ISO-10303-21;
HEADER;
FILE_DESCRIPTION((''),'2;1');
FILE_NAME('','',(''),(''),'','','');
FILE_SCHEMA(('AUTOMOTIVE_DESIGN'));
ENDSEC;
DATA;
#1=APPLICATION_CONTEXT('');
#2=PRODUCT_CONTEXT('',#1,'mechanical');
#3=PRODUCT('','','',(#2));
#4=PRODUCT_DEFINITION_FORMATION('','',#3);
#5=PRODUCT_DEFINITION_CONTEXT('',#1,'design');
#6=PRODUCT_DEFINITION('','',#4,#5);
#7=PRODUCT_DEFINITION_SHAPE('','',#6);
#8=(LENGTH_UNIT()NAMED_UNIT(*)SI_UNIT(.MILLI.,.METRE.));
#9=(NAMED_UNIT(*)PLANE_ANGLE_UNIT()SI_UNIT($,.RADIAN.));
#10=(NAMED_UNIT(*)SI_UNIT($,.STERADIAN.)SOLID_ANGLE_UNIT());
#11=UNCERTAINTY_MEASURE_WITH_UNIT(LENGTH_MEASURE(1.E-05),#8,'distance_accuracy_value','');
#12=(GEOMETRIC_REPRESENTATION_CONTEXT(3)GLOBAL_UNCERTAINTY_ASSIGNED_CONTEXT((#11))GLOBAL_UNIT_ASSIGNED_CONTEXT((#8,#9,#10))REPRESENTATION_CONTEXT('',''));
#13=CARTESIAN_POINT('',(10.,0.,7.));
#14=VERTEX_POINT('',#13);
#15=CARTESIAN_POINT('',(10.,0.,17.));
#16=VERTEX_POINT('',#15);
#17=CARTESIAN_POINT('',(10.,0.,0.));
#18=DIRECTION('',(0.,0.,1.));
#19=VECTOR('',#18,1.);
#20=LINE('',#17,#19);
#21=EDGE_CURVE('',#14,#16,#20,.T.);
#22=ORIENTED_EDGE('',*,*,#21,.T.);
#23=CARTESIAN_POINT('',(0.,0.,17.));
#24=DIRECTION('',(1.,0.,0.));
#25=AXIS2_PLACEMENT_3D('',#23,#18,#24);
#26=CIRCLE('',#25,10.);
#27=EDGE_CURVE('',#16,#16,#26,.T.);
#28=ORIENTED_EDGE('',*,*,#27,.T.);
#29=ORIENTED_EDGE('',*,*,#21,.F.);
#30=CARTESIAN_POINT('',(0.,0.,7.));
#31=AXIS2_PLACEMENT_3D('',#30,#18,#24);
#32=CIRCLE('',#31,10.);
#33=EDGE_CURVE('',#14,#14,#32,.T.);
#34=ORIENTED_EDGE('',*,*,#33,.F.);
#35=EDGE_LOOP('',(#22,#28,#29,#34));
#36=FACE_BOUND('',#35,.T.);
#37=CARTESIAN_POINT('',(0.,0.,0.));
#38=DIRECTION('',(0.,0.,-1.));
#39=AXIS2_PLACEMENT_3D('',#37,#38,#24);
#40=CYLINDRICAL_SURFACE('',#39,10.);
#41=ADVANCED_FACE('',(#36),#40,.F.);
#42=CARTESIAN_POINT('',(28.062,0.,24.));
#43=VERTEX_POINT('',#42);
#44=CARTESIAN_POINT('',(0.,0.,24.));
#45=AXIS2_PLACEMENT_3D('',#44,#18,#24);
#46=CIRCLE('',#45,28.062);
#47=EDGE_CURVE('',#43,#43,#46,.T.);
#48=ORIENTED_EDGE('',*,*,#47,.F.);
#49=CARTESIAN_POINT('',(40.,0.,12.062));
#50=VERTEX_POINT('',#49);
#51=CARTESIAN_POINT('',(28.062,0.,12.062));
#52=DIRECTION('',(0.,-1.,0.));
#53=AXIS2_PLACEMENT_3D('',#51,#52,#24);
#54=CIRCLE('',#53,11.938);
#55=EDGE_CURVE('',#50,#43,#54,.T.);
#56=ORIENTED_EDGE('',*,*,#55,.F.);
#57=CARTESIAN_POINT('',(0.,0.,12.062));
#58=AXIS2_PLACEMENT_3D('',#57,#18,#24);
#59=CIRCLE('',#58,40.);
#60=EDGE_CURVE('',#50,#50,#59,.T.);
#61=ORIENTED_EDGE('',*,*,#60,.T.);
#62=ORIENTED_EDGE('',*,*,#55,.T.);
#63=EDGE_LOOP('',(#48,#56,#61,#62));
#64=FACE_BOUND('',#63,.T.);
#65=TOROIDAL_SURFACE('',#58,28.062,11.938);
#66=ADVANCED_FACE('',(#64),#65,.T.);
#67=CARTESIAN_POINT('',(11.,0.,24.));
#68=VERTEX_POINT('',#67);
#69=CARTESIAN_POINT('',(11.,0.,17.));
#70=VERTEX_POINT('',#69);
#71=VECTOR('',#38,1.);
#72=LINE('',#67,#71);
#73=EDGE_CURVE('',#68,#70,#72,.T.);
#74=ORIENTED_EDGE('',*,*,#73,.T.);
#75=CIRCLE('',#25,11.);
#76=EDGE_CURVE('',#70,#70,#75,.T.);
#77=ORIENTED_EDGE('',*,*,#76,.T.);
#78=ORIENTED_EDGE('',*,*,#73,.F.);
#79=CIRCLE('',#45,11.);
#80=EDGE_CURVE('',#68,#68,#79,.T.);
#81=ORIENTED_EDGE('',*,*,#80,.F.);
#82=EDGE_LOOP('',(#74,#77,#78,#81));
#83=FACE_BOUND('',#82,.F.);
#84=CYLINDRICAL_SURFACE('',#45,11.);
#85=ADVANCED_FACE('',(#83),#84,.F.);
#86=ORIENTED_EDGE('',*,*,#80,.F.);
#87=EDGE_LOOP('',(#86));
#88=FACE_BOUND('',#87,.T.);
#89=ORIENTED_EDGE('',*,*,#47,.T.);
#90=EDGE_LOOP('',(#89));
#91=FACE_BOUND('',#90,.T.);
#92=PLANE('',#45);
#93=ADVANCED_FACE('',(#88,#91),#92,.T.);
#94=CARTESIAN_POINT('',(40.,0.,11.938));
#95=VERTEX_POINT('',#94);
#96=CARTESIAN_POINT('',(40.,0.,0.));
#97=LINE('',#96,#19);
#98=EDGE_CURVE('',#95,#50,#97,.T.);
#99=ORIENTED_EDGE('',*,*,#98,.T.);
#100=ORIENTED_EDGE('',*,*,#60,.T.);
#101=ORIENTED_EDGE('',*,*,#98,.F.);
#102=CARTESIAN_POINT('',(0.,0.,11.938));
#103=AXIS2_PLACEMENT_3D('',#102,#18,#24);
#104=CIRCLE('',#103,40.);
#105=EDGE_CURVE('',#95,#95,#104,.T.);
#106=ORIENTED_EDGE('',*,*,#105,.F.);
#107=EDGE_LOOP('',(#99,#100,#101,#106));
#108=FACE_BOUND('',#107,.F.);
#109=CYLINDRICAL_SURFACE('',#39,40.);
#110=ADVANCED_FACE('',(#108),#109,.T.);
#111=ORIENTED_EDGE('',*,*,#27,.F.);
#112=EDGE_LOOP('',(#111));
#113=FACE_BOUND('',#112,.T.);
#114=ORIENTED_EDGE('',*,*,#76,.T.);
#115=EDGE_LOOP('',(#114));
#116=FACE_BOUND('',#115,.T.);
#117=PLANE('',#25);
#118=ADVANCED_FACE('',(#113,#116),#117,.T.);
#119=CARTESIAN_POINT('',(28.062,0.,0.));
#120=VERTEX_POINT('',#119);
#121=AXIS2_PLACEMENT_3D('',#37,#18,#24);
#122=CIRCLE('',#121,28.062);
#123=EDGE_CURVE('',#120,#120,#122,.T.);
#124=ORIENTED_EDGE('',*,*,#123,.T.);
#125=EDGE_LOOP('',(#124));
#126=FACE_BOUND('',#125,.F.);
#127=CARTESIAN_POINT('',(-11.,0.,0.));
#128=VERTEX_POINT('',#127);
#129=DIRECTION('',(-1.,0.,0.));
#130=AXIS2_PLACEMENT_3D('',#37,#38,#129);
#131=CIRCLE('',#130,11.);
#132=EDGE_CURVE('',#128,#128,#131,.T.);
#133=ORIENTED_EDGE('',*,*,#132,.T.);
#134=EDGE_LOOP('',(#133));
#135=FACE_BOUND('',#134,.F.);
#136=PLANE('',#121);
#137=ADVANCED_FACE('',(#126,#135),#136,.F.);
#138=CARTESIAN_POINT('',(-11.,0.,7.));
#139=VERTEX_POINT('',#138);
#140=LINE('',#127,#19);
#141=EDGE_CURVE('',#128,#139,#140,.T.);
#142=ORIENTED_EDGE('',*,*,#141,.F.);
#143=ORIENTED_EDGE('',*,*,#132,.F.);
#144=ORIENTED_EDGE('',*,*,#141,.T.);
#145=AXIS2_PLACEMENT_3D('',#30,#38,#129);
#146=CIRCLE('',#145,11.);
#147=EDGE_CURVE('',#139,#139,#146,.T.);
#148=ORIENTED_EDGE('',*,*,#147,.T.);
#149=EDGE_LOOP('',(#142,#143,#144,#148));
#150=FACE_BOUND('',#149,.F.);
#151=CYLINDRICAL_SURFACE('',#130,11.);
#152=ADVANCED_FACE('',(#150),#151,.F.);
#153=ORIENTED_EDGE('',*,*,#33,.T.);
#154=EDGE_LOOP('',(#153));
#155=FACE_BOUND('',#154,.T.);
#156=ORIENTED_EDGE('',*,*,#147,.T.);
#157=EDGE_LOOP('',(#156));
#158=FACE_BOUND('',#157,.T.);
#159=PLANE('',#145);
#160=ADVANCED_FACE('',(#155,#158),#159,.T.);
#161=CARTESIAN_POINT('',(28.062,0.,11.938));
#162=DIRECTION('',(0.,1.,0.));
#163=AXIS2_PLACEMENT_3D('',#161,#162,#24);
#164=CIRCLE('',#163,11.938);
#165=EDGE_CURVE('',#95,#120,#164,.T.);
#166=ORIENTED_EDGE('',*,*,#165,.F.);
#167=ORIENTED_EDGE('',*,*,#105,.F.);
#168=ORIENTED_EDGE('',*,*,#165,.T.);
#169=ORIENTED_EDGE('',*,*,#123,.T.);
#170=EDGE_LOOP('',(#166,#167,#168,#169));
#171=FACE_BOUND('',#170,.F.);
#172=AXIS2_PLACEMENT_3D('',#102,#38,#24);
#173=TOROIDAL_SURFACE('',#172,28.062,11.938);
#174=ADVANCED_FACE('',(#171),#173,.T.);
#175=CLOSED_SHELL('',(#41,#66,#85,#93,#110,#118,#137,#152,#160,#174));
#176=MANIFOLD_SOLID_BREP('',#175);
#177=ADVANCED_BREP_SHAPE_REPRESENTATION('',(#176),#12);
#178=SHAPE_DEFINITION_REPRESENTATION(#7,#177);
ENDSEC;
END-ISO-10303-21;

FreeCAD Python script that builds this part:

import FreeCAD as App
import Part
import Sketcher
from FreeCAD import Vector
Q = App.Units.Quantity


def edges_at(feature, points):
    """Names of the edges that pass closest to the given points."""
    edges = feature.Shape.Edges
    near = lambda p: min(range(len(edges)), key=lambda i: edges[i].distToShape(Part.Vertex(*p))[0])
    return sorted({f"Edge{near(p) + 1}" for p in points})

doc = App.newDocument("Part")
params = doc.addObject("Spreadsheet::Sheet", "Params")
for row, (alias, value) in enumerate([
    ("sketch1_diameter", "80 mm"),
    ("sketch1_diameter2", "20 mm"),
    ("pad1_length", "24 mm"),
    ("fillet_radius", "11.938 mm"),
    ("sketch2_diameter", "22 mm"),
    ("sketch2_diameter2", "20 mm"),
    ("pocket1_length", "7 mm"),
    ("sketch3_diameter", "22 mm"),
    ("sketch3_diameter2", "20 mm"),
    ("pocket2_length", "7 mm"),
], start=1):
    params.set(f"A{row}", alias)
    params.set(f"B{row}", "=" + value)
    params.setAlias(f"B{row}", alias)

body = doc.addObject("PartDesign::Body", "Body")

# Sketch on XY plane
sketch1 = doc.addObject("Sketcher::SketchObject", "Sketch")
body.addObject(sketch1)
sketch1.AttachmentSupport = (doc.XY_Plane, [""])
sketch1.MapMode = "FlatFace"
sketch1.addGeometry(Part.Circle(Vector(0, 0, 0), Vector(0, 0, 1), 40), False)
sketch1.addGeometry(Part.Circle(Vector(0, 0, 0), Vector(0, 0, 1), 10), False)
sketch1.addConstraint(Sketcher.Constraint("Coincident", 0, 3, -1, 1))
sketch1.addConstraint(Sketcher.Constraint("Coincident", 1, 3, -1, 1))
sketch1.addConstraint(Sketcher.Constraint("Diameter", 0, Q("80 mm")))
sketch1.addConstraint(Sketcher.Constraint("Diameter", 1, Q("20 mm")))
sketch1.setExpression("Constraints[2]", "Params.sketch1_diameter")
sketch1.setExpression("Constraints[3]", "Params.sketch1_diameter2")
pad1 = doc.addObject("PartDesign::Pad", "Pad")
body.addObject(pad1)
pad1.Profile = sketch1
pad1.setExpression("Length", "Params.pad1_length")
doc.recompute()

fillet = doc.addObject("PartDesign::Fillet", "Fillet")
body.addObject(fillet)
fillet.Base = (pad1, edges_at(pad1, [(-40, 0, 24), (-40, 0, 0)]))
fillet.setExpression("Radius", "Params.fillet_radius")

# Sketch on XY plane
sketch2 = doc.addObject("Sketcher::SketchObject", "Sketch001")
body.addObject(sketch2)
sketch2.AttachmentSupport = (doc.XY_Plane, [""])
sketch2.MapMode = "FlatFace"
sketch2.AttachmentOffset = App.Placement(Vector(0, 0, 24), App.Rotation())
sketch2.addGeometry(Part.Circle(Vector(0, 0, 0), Vector(0, 0, 1), 11), False)
sketch2.addGeometry(Part.Circle(Vector(0, 0, 0), Vector(0, 0, 1), 10), False)
sketch2.addConstraint(Sketcher.Constraint("Coincident", 0, 3, -1, 1))
sketch2.addConstraint(Sketcher.Constraint("Coincident", 1, 3, -1, 1))
sketch2.addConstraint(Sketcher.Constraint("Diameter", 0, Q("22 mm")))
sketch2.addConstraint(Sketcher.Constraint("Diameter", 1, Q("20 mm")))
sketch2.setExpression("Constraints[2]", "Params.sketch2_diameter")
sketch2.setExpression("Constraints[3]", "Params.sketch2_diameter2")
pocket1 = doc.addObject("PartDesign::Pocket", "Pocket")
body.addObject(pocket1)
pocket1.Profile = sketch2
pocket1.setExpression("Length", "Params.pocket1_length")

# Sketch on XY plane
sketch3 = doc.addObject("Sketcher::SketchObject", "Sketch002")
body.addObject(sketch3)
sketch3.AttachmentSupport = (doc.XY_Plane, [""])
sketch3.MapMode = "FlatFace"
sketch3.addGeometry(Part.Circle(Vector(0, 0, 0), Vector(0, 0, 1), 11), False)
sketch3.addGeometry(Part.Circle(Vector(0, 0, 0), Vector(0, 0, 1), 10), False)
sketch3.addConstraint(Sketcher.Constraint("Coincident", 0, 3, -1, 1))
sketch3.addConstraint(Sketcher.Constraint("Coincident", 1, 3, -1, 1))
sketch3.addConstraint(Sketcher.Constraint("Diameter", 0, Q("22 mm")))
sketch3.addConstraint(Sketcher.Constraint("Diameter", 1, Q("20 mm")))
sketch3.setExpression("Constraints[2]", "Params.sketch3_diameter")
sketch3.setExpression("Constraints[3]", "Params.sketch3_diameter2")
pocket2 = doc.addObject("PartDesign::Pocket", "Pocket001")
body.addObject(pocket2)
pocket2.Profile = sketch3
pocket2.setExpression("Length", "Params.pocket2_length")
pocket2.Reversed = True

doc.recompute()
